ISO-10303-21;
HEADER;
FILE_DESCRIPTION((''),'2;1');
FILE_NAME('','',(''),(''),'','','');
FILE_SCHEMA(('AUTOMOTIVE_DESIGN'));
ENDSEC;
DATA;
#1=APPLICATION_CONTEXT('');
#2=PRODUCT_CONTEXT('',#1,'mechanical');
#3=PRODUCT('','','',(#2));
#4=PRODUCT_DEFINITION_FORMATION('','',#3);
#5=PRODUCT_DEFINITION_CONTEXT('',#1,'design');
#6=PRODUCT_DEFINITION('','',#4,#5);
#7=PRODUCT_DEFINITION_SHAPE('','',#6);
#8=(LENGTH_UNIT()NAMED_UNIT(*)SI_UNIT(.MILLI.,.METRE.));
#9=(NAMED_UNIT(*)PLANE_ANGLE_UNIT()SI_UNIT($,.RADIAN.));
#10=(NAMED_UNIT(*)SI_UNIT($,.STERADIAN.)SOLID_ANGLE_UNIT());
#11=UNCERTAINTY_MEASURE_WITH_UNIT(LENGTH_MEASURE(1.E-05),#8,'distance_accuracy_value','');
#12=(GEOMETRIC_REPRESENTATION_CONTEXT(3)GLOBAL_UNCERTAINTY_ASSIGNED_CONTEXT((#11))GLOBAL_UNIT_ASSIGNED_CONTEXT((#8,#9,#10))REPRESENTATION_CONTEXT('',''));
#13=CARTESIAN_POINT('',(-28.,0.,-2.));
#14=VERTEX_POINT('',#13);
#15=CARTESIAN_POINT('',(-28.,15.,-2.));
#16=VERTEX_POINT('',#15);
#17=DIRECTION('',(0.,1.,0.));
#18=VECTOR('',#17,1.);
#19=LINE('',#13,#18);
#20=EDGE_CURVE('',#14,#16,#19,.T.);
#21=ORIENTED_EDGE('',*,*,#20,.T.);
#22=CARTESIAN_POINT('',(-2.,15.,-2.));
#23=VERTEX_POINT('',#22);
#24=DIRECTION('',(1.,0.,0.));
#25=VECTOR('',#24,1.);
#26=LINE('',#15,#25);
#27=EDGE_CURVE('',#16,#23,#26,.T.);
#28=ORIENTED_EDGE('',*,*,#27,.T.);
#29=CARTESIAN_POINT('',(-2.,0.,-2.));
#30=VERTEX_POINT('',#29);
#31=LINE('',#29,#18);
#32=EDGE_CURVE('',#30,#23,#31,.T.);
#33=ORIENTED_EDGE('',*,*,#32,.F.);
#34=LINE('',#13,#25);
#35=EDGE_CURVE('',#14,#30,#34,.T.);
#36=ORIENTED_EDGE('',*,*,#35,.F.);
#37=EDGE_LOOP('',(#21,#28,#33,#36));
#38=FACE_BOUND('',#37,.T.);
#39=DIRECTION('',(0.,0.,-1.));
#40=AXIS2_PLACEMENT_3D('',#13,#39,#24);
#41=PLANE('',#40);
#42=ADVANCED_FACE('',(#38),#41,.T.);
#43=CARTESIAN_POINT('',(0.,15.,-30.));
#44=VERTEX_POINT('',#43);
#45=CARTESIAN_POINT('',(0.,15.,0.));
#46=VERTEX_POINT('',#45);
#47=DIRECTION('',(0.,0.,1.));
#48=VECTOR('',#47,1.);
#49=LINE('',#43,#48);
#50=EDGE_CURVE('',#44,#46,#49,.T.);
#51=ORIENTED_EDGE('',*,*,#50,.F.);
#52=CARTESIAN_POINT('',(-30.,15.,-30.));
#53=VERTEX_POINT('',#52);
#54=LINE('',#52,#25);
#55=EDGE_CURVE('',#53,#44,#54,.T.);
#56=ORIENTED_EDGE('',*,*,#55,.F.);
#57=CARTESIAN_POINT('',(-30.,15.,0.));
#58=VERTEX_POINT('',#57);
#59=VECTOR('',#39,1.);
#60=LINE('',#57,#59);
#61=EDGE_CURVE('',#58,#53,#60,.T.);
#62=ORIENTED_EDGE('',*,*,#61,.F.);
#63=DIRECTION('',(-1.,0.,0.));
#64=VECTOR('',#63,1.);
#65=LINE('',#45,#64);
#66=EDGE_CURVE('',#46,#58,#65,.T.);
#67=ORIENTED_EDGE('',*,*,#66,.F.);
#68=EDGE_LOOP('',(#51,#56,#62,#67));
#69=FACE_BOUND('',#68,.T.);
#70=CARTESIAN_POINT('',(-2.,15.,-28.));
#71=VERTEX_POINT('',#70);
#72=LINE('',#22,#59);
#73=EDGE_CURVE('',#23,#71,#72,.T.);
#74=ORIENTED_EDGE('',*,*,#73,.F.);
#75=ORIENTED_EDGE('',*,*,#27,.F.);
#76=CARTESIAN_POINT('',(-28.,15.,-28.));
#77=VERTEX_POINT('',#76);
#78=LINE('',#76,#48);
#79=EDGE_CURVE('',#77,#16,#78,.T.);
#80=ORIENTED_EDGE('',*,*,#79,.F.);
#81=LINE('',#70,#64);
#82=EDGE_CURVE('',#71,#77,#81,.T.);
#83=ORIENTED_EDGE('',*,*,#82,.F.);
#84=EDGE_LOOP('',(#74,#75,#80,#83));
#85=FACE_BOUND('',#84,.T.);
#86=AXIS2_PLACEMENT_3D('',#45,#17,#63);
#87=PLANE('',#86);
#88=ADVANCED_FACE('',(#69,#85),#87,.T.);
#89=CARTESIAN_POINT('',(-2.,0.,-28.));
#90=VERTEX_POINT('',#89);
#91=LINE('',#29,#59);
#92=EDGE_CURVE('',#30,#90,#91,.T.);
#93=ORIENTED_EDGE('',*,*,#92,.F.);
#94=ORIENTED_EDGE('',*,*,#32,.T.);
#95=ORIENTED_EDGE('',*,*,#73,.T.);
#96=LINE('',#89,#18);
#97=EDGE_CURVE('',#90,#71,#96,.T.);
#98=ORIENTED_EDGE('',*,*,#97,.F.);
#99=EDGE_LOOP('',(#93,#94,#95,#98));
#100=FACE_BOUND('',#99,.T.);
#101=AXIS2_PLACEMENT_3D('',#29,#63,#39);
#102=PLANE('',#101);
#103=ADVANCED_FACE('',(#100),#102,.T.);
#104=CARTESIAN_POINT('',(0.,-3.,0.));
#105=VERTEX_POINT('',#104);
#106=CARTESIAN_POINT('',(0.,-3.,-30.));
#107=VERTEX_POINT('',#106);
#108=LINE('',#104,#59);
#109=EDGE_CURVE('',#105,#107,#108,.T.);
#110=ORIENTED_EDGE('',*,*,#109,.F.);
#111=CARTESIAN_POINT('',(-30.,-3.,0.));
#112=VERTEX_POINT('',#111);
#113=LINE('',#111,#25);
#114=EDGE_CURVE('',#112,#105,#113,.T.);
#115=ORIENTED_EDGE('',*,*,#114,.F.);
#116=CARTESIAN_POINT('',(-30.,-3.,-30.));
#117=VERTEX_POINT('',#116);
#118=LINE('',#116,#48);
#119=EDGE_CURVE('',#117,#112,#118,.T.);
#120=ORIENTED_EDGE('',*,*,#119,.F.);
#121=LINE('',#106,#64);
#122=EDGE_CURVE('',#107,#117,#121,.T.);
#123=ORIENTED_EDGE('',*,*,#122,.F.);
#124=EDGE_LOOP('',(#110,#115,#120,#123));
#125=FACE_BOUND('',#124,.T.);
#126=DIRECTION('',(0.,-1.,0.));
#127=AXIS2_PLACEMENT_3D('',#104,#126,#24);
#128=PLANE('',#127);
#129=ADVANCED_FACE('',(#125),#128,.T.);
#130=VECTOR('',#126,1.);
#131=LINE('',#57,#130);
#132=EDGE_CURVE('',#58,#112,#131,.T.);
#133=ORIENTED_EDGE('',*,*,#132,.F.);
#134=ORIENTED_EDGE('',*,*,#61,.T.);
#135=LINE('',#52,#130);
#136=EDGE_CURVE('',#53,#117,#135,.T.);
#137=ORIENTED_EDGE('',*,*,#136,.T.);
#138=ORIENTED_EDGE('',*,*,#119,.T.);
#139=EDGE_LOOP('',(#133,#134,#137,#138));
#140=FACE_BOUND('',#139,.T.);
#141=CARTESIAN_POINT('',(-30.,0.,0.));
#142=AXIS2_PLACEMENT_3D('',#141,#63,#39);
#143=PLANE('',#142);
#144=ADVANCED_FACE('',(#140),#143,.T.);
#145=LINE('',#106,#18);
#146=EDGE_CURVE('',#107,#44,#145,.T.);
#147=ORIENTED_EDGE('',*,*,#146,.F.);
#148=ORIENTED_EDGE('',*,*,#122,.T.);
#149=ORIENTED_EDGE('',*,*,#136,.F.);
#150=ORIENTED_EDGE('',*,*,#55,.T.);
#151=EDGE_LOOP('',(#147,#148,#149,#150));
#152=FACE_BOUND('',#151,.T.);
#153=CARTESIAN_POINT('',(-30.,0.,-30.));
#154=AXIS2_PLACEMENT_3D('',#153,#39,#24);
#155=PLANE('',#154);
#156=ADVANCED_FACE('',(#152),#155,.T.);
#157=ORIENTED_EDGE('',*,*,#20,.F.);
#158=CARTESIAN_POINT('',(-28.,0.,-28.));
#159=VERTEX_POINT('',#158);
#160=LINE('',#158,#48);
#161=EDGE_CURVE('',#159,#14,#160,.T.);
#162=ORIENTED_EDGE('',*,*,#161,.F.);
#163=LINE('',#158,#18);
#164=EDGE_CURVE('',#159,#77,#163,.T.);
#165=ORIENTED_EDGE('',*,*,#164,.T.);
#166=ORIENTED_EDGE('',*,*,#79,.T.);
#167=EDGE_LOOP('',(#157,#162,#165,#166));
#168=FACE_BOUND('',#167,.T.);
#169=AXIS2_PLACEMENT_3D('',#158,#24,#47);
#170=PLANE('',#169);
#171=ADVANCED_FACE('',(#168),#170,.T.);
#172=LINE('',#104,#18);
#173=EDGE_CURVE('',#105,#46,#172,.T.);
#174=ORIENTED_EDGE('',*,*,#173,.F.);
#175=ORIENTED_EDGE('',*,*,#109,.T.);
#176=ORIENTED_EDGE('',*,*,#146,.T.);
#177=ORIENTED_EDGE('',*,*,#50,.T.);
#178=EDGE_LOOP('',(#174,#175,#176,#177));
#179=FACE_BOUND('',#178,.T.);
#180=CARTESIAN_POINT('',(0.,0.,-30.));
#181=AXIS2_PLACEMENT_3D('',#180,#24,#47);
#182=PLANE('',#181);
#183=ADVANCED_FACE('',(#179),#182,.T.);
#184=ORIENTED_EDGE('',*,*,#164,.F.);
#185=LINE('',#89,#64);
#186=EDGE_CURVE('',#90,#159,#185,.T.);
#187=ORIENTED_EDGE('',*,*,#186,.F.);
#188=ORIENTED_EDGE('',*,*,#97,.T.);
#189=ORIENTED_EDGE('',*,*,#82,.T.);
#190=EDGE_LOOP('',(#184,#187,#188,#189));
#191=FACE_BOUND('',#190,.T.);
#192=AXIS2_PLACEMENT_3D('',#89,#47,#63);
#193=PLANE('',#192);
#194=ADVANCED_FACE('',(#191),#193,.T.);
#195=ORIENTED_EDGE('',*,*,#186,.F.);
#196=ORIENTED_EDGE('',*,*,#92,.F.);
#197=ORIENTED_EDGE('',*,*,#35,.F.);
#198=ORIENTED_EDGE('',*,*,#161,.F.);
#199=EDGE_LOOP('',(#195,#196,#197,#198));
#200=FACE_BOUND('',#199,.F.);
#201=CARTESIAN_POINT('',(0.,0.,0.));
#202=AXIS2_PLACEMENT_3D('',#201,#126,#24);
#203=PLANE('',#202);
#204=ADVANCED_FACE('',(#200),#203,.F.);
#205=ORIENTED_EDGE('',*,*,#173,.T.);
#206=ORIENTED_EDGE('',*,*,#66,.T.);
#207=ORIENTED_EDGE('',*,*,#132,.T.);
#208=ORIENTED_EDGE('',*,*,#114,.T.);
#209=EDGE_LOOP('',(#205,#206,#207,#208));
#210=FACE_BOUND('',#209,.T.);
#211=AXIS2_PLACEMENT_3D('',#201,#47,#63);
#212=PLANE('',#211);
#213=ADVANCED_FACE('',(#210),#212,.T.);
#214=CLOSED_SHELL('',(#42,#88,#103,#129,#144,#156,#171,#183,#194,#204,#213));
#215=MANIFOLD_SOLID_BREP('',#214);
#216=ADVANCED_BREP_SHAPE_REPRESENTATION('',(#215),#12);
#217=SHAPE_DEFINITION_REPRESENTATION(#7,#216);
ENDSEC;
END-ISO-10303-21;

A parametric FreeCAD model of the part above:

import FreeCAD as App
import Part
import Sketcher

V = App.Vector
Q = App.Units.Quantity


def add_polygon(sketch, points):
    """Adds a closed chain of lines whose ends are joined by coincident constraints."""
    first, n = sketch.GeometryCount, len(points)
    for a, b in zip(points, points[1:] + points[:1]):
        sketch.addGeometry(Part.LineSegment(App.Vector(*a, 0), App.Vector(*b, 0)), False)
    for i in range(n):
        sketch.addConstraint(Sketcher.Constraint("Coincident", first + i, 2, first + (i + 1) % n, 1))

doc = App.newDocument("Part")
body = doc.addObject("PartDesign::Body", "Body")

# Sketch on XZ plane
sketch1 = doc.addObject("Sketcher::SketchObject", "Sketch")
body.addObject(sketch1)
sketch1.AttachmentSupport = (doc.XZ_Plane, [""])
sketch1.MapMode = "FlatFace"
add_polygon(sketch1, [(-30, 0), (0, 0), (0, -30), (-30, -30)])  # lines 0-3
add_polygon(sketch1, [(-2, -2), (-28, -2), (-28, -28), (-2, -28)])  # lines 4-7
sketch1.addConstraint(Sketcher.Constraint("Horizontal", 0))
sketch1.addConstraint(Sketcher.Constraint("Vertical", 1))
sketch1.addConstraint(Sketcher.Constraint("Horizontal", 2))
sketch1.addConstraint(Sketcher.Constraint("Vertical", 3))
sketch1.addConstraint(Sketcher.Constraint("Horizontal", 4))
sketch1.addConstraint(Sketcher.Constraint("Vertical", 5))
sketch1.addConstraint(Sketcher.Constraint("Horizontal", 6))
sketch1.addConstraint(Sketcher.Constraint("Vertical", 7))
sketch1.addConstraint(Sketcher.Constraint("Coincident", 0, 2, -1, 1))
sketch1.addConstraint(Sketcher.Constraint("Equal", 2, 1))
sketch1.addConstraint(Sketcher.Constraint("Equal", 6, 5))
sketch1.addConstraint(Sketcher.Constraint("DistanceX", 0, 1, 0, 2, Q("30 mm")))
sketch1.addConstraint(Sketcher.Constraint("DistanceY", 4, 2, -1, 1, Q("2 mm")))
sketch1.addConstraint(Sketcher.Constraint("DistanceX", 6, 2, -1, 1, Q("2 mm")))
sketch1.addConstraint(Sketcher.Constraint("DistanceX", 3, 2, 4, 2, Q("2 mm")))
pad1 = doc.addObject("PartDesign::Pad", "Pad")
body.addObject(pad1)
pad1.Profile = sketch1
pad1.Length = 15
pad1.Reversed = True

# Sketch on XZ plane
sketch2 = doc.addObject("Sketcher::SketchObject", "Sketch001")
body.addObject(sketch2)
sketch2.AttachmentSupport = (doc.XZ_Plane, [""])
sketch2.MapMode = "FlatFace"
add_polygon(sketch2, [(0, 0), (-30, 0), (-30, -30), (0, -30)])  # lines 0-3
sketch2.addConstraint(Sketcher.Constraint("Horizontal", 0))
sketch2.addConstraint(Sketcher.Constraint("Vertical", 1))
sketch2.addConstraint(Sketcher.Constraint("Horizontal", 2))
sketch2.addConstraint(Sketcher.Constraint("Vertical", 3))
sketch2.addConstraint(Sketcher.Constraint("Coincident", 3, 2, -1, 1))
sketch2.addConstraint(Sketcher.Constraint("Equal", 2, 1))
sketch2.addConstraint(Sketcher.Constraint("DistanceX", 0, 2, 0, 1, Q("30 mm")))
pad2 = doc.addObject("PartDesign::Pad", "Pad001")
body.addObject(pad2)
pad2.Profile = sketch2
pad2.Length = 3

doc.recompute()
